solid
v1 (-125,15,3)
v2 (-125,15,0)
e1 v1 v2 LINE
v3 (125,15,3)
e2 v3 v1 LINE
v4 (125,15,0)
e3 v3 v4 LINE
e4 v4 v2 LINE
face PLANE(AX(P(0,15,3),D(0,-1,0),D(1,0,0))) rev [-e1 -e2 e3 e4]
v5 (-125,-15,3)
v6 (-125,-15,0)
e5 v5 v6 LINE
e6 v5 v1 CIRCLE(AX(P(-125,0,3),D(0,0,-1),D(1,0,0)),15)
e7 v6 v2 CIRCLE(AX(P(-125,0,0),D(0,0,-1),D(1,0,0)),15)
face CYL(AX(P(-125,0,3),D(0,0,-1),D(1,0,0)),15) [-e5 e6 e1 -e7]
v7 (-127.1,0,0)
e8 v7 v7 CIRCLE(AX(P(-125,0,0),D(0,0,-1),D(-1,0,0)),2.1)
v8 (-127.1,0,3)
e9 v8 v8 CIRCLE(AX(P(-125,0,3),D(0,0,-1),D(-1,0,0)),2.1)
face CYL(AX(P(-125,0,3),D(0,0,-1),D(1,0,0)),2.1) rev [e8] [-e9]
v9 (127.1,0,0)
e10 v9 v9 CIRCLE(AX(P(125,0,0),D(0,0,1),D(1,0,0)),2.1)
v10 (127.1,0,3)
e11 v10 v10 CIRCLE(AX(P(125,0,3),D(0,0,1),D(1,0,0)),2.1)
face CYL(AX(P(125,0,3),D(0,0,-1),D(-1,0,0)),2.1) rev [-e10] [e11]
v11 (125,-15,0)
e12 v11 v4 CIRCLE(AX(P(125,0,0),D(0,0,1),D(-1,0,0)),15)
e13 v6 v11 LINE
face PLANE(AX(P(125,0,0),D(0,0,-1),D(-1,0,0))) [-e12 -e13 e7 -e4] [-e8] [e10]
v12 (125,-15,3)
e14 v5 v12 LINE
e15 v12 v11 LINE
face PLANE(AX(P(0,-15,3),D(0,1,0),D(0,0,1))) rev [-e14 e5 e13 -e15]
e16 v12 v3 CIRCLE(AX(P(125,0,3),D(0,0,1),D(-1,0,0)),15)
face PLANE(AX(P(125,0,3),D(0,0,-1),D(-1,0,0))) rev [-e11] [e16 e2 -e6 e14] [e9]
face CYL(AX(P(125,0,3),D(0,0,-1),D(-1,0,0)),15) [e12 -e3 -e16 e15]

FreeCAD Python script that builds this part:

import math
import FreeCAD as App
import Part
import Sketcher

V = App.Vector
Q = App.Units.Quantity

doc = App.newDocument("Part")
body = doc.addObject("PartDesign::Body", "Body")

# Sketch on XY plane
sketch1 = doc.addObject("Sketcher::SketchObject", "Sketch")
body.addObject(sketch1)
sketch1.AttachmentSupport = (doc.XY_Plane, [""])
sketch1.MapMode = "FlatFace"
sketch1.addGeometry(Part.LineSegment(V(125, 15, 0), V(0, 15, 0)), False)
sketch1.addGeometry(Part.LineSegment(V(0, 15, 0), V(0, -15, 0)), False)
sketch1.addGeometry(Part.LineSegment(V(0, -15, 0), V(125, -15, 0)), False)
sketch1.addGeometry(Part.ArcOfCircle(Part.Circle(V(125, 0, 0), V(0, 0, 1), 15), math.radians(-90), math.radians(90)), False)
sketch1.addGeometry(Part.Circle(V(125, 0, 0), V(0, 0, 1), 2.1), False)
sketch1.addConstraint(Sketcher.Constraint("Coincident", 0, 2, 1, 1))
sketch1.addConstraint(Sketcher.Constraint("Coincident", 1, 2, 2, 1))
sketch1.addConstraint(Sketcher.Constraint("Tangent", 2, 2, 3, 1))
sketch1.addConstraint(Sketcher.Constraint("Tangent", 3, 2, 0, 1))
sketch1.addConstraint(Sketcher.Constraint("Horizontal", 0))
sketch1.addConstraint(Sketcher.Constraint("Vertical", 1))
sketch1.addConstraint(Sketcher.Constraint("Horizontal", 2))
sketch1.addConstraint(Sketcher.Constraint("Coincident", 4, 3, 3, 3))
sketch1.addConstraint(Sketcher.Constraint("Symmetric", 0, 2, 1, 2, -1, 1))
sketch1.addConstraint(Sketcher.Constraint("Radius", 3, Q("15 mm")))
sketch1.addConstraint(Sketcher.Constraint("Diameter", 4, Q("4.2 mm")))
sketch1.addConstraint(Sketcher.Constraint("DistanceX", 0, 2, 0, 1, Q("125 mm")))
pad1 = doc.addObject("PartDesign::Pad", "Pad")
body.addObject(pad1)
pad1.Profile = sketch1
pad1.Length = 3
body2 = doc.addObject("PartDesign::Body", "Body001")
doc.recompute()

body2.BaseFeature = body
doc.recompute()

mirroring = doc.addObject("Part::Mirroring", "Mirroring")
mirroring.Source = body
mirroring.Base = V(0, 15, 3)
mirroring.Normal = V(1, 0, 0)
body3 = doc.addObject("PartDesign::Body", "Body002")
body3.BaseFeature = mirroring
boolean = doc.addObject("PartDesign::Boolean", "Boolean")
body2.addObject(boolean)
boolean.Type = "Fuse"
boolean.addObjects([body3])
doc.recompute()
mirroring.Visibility = False

doc.recompute()
